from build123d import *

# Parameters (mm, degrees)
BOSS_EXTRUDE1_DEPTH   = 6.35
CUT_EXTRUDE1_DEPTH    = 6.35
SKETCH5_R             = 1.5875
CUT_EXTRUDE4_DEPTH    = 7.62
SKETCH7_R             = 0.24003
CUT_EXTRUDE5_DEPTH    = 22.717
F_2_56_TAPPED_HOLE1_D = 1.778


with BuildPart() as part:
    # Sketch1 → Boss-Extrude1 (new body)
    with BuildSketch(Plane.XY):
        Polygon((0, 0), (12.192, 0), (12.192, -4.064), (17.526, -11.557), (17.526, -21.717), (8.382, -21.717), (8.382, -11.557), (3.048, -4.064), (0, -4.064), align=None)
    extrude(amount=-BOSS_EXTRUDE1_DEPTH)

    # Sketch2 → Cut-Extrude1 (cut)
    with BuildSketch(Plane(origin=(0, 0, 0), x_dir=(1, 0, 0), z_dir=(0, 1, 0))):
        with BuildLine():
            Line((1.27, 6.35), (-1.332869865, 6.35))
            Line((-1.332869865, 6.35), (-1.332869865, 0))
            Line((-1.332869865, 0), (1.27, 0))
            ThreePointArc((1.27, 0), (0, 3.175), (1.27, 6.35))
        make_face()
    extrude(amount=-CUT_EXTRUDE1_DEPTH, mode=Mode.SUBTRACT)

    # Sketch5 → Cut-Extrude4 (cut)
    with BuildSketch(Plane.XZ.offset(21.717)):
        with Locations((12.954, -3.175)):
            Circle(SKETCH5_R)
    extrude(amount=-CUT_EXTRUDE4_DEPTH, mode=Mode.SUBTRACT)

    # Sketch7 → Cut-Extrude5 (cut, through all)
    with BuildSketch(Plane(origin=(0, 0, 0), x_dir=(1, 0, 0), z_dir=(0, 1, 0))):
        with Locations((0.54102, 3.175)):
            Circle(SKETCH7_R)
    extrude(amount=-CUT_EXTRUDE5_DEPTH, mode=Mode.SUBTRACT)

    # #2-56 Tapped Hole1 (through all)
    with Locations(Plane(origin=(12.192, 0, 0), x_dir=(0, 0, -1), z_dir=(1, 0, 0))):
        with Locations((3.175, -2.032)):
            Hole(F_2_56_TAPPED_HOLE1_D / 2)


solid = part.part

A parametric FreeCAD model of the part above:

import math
import FreeCAD as App
import Part
import Sketcher
from FreeCAD import Vector
Q = App.Units.Quantity


def add_polygon(sketch, points):
    """Adds a closed chain of lines whose ends are joined by coincident constraints."""
    first, n = sketch.GeometryCount, len(points)
    for a, b in zip(points, points[1:] + points[:1]):
        sketch.addGeometry(Part.LineSegment(App.Vector(*a, 0), App.Vector(*b, 0)), False)
    for i in range(n):
        sketch.addConstraint(Sketcher.Constraint("Coincident", first + i, 2, first + (i + 1) % n, 1))

doc = App.newDocument("Part")
params = doc.addObject("Spreadsheet::Sheet", "Params")
for row, (alias, value) in enumerate([
    ("sketch1_height", "0.4 in"),
    ("sketch1_width", "0.48 in"),
    ("sketch1_width2", "0.12 in"),
    ("sketch1_height2", "0.16 in"),
    ("pad1_length", "0.25 in"),
    ("sketch2_height", "0.25 in"),
    ("pocket1_length", "0.25 in"),
    ("sketch3_diameter", "0.125 in"),
    ("pocket2_length", "0.3 in"),
    ("sketch5_diameter", "0.07 in"),
    ("hole_diameter", "0.07 in"),
], start=1):
    params.set(f"A{row}", alias)
    params.set(f"B{row}", "=" + value)
    params.setAlias(f"B{row}", alias)

body = doc.addObject("PartDesign::Body", "Body")

sketch1 = doc.addObject("Sketcher::SketchObject", "Sketch")
body.addObject(sketch1)
sketch1.AttachmentSupport = (doc.XY_Plane, [""])
sketch1.MapMode = "FlatFace"
add_polygon(sketch1, [(12.2, 0), (0, 0), (0, -4.1), (3, -4.1), (8.4, -11.6), (8.4, -21.7), (17.5, -21.7), (17.5, -11.6), (12.2, -4.1)])
sketch1.addConstraint([
    Sketcher.Constraint("Horizontal", 0),
    Sketcher.Constraint("Vertical", 1),
    Sketcher.Constraint("Horizontal", 2),
    Sketcher.Constraint("Vertical", 4),
    Sketcher.Constraint("Horizontal", 5),
    Sketcher.Constraint("Vertical", 6),
    Sketcher.Constraint("Vertical", 8),
    Sketcher.Constraint("Coincident", 0, 2, -1, 1),
    Sketcher.Constraint("Parallel", 3, 7),
    Sketcher.Constraint("Horizontal", 3, 2, 6, 2),
    Sketcher.Constraint("Horizontal", 2, 2, 7, 2),
    Sketcher.Constraint("DistanceY", 4, 2, 4, 1, Q("0.4 in")),
    Sketcher.Constraint("DistanceX", 0, 2, 0, 1, Q("0.48 in")),
    Sketcher.Constraint("DistanceX", 2, 1, 2, 2, Q("0.12 in")),
    Sketcher.Constraint("DistanceY", 1, 2, 1, 1, Q("0.16 in")),
    Sketcher.Constraint("DistanceX", -1, 1, 3, 2, Q("0.33 in")),
    Sketcher.Constraint("DistanceY", 3, 2, -1, 1, Q("0.455 in")),
])
sketch1.setExpression("Constraints[20]", "Params.sketch1_height")
sketch1.setExpression("Constraints[21]", "Params.sketch1_width")
sketch1.setExpression("Constraints[22]", "Params.sketch1_width2")
sketch1.setExpression("Constraints[23]", "Params.sketch1_height2")
pad1 = doc.addObject("PartDesign::Pad", "Pad")
body.addObject(pad1)
pad1.Profile = sketch1
pad1.setExpression("Length", "Params.pad1_length")
pad1.Reversed = True

sketch2 = doc.addObject("Sketcher::SketchObject", "Sketch001")
body.addObject(sketch2)
sketch2.AttachmentSupport = (doc.XZ_Plane, [""])
sketch2.MapMode = "FlatFace"
sketch2.addGeometry([
    Part.LineSegment(Vector(1.3, -6.3, 0), Vector(-1.3, -6.3, 0)),
    Part.LineSegment(Vector(-1.3, -6.3, 0), Vector(-1.3, 0, 0)),
    Part.LineSegment(Vector(-1.3, 0, 0), Vector(1.3, 0, 0)),
    Part.ArcOfCircle(Part.Circle(Vector(4.6, -3.2, 0), Vector(0, 0, 1), 4.6), math.radians(136), math.radians(224)),
], False)
sketch2.addConstraint([
    Sketcher.Constraint("Coincident", 0, 2, 1, 1),
    Sketcher.Constraint("Coincident", 1, 2, 2, 1),
    Sketcher.Constraint("Coincident", 2, 2, 3, 1),
    Sketcher.Constraint("Coincident", 3, 2, 0, 1),
    Sketcher.Constraint("Horizontal", 0),
    Sketcher.Constraint("Vertical", 1),
    Sketcher.Constraint("Horizontal", 2),
    Sketcher.Constraint("PointOnObject", 1, 2, -1),
    Sketcher.Constraint("Vertical", 2, 2, 3, 2),
    Sketcher.Constraint("DistanceY", 1, 1, 1, 2, Q("0.25 in")),
    Sketcher.Constraint("DistanceX", -1, 1, 2, 2, Q("0.05 in")),
    Sketcher.Constraint("Radius", 3, 4.60375),
    Sketcher.Constraint("DistanceX", 0, 2, 0, 1, 2.60287),
])
sketch2.setExpression("Constraints[9]", "Params.sketch2_height")
pocket1 = doc.addObject("PartDesign::Pocket", "Pocket")
body.addObject(pocket1)
pocket1.Profile = sketch2
pocket1.setExpression("Length", "Params.pocket1_length")
pocket1.Reversed = True

sketch3 = doc.addObject("Sketcher::SketchObject", "Sketch002")
body.addObject(sketch3)
sketch3.AttachmentSupport = (doc.XZ_Plane, [""])
sketch3.MapMode = "FlatFace"
sketch3.AttachmentOffset = App.Placement(Vector(0, 0, 0.855 * 25.4), App.Rotation())
sketch3.addGeometry(Part.Circle(Vector(13, -3.2, 0), Vector(0, 0, 1), 1.6), False)
sketch3.addConstraint([
    Sketcher.Constraint("Diameter", 0, Q("0.125 in")),
    Sketcher.Constraint("DistanceX", -1, 1, 0, 3, Q("0.51 in")),
    Sketcher.Constraint("DistanceY", 0, 3, -1, 1, Q("0.125 in")),
])
sketch3.setExpression("Constraints[0]", "Params.sketch3_diameter")
pocket2 = doc.addObject("PartDesign::Pocket", "Pocket001")
body.addObject(pocket2)
pocket2.Profile = sketch3
pocket2.setExpression("Length", "Params.pocket2_length")

sketch4 = doc.addObject("Sketcher::SketchObject", "Sketch003")
body.addObject(sketch4)
sketch4.AttachmentSupport = (doc.XZ_Plane, [""])
sketch4.MapMode = "FlatFace"
sketch4.addGeometry(Part.Circle(Vector(0.54, -3.17, 0), Vector(0, 0, 1), 0.24), False)
sketch4.addConstraint([
    Sketcher.Constraint("Diameter", 0, Q("0.0189 in")),
    Sketcher.Constraint("DistanceY", 0, 3, -1, 1, Q("0.125 in")),
    Sketcher.Constraint("DistanceX", -1, 1, 0, 3, Q("0.0213 in")),
])
pocket3 = doc.addObject("PartDesign::Pocket", "Pocket002")
body.addObject(pocket3)
pocket3.Profile = sketch4
pocket3.Type = "ThroughAll"
pocket3.Reversed = True

sketch5 = doc.addObject("Sketcher::SketchObject", "Sketch004")
body.addObject(sketch5)
sketch5.AttachmentSupport = (doc.YZ_Plane, [""])
sketch5.MapMode = "FlatFace"
sketch5.AttachmentOffset = App.Placement(Vector(0, 0, 0.48 * 25.4), App.Rotation())
sketch5.addGeometry(Part.Circle(Vector(-2, -3.2, 0), Vector(0, 0, 1), 0.9), False)
sketch5.addConstraint([
    Sketcher.Constraint("Diameter", 0, Q("0.07 in")),
    Sketcher.Constraint("DistanceX", 0, 3, -1, 1, Q("0.08 in")),
    Sketcher.Constraint("DistanceY", 0, 3, -1, 1, Q("0.125 in")),
])
sketch5.setExpression("Constraints[0]", "Params.sketch5_diameter")
doc.recompute()
hole = doc.addObject("PartDesign::Hole", "Hole")
body.addObject(hole)
hole.Profile = sketch5
hole.ThreadType = "None"
hole.setExpression("Diameter", "Params.hole_diameter")
hole.DepthType = "ThroughAll"

doc.recompute()
